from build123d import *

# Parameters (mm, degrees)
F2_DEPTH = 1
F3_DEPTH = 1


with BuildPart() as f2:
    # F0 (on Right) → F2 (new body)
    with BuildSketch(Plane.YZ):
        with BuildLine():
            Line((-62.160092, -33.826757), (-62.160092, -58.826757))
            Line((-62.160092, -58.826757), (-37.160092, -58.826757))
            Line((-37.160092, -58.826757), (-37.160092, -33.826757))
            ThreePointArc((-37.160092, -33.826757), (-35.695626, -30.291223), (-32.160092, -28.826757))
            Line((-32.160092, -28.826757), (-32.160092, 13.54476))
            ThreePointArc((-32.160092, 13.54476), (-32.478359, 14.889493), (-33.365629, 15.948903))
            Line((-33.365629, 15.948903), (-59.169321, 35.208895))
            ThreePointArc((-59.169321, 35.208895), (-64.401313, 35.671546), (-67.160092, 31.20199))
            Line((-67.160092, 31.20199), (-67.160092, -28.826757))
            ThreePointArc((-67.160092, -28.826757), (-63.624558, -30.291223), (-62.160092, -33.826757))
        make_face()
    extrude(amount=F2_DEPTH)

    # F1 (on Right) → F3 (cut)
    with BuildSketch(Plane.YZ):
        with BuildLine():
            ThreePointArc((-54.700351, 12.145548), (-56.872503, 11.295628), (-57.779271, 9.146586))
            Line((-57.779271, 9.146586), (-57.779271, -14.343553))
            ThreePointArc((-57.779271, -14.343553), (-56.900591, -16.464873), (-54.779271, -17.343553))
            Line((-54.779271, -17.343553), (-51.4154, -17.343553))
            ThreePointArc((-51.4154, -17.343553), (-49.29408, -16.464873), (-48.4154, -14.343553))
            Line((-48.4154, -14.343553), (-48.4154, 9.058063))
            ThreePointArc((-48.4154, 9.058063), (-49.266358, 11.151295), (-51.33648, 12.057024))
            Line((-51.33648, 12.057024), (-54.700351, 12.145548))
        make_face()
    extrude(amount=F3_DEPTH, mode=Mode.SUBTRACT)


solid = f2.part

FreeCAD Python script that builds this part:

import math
import FreeCAD as App
import Part
import Sketcher
Q = App.Units.Quantity

doc = App.newDocument("Part")
params = doc.addObject("Spreadsheet::Sheet", "Params")
for row, (alias, value) in enumerate([
    ("sketch1_radius", "5 mm"),
    ("sketch1_width", "25 mm"),
    ("pad1_length", "1 mm"),
    ("sketch2_radius", "3 mm"),
    ("pocket1_length", "1 mm"),
], start=1):
    params.set(f"A{row}", alias)
    params.set(f"B{row}", "=" + value)
    params.setAlias(f"B{row}", alias)

body = doc.addObject("PartDesign::Body", "Body")

# Sketch on YZ plane
sketch1 = body.newObject("Sketcher::SketchObject", "Sketch")
sketch1.AttachmentSupport = (doc.getObject("YZ_Plane"), [""])
sketch1.MapMode = "FlatFace"
sketch1.addGeometry([
    Part.LineSegment(App.Vector(-62.2, -33.8, 0), App.Vector(-62.2, -58.8, 0)),  # 0
    Part.LineSegment(App.Vector(-62.2, -58.8, 0), App.Vector(-37.2, -58.8, 0)),  # 1
    Part.LineSegment(App.Vector(-37.2, -58.8, 0), App.Vector(-37.2, -33.8, 0)),  # 2
    Part.ArcOfCircle(Part.Circle(App.Vector(-32.2, -33.8, 0), App.Vector(0, 0, 1), 5), math.radians(90), math.radians(180)),  # 3
    Part.LineSegment(App.Vector(-32.2, -28.8, 0), App.Vector(-32.2, 13.5, 0)),  # 4
    Part.ArcOfCircle(Part.Circle(App.Vector(-35.2, 13.5, 0), App.Vector(0, 0, 1), 3), math.radians(0), math.radians(53)),  # 5
    Part.LineSegment(App.Vector(-33.4, 15.9, 0), App.Vector(-59.2, 35.2, 0)),  # 6
    Part.ArcOfCircle(Part.Circle(App.Vector(-62.2, 31.2, 0), App.Vector(0, 0, 1), 5), math.radians(53), math.radians(180)),  # 7
    Part.LineSegment(App.Vector(-67.2, 31.2, 0), App.Vector(-67.2, -28.8, 0)),  # 8
    Part.ArcOfCircle(Part.Circle(App.Vector(-67.2, -33.8, 0), App.Vector(0, 0, 1), 5), math.radians(0), math.radians(90)),  # 9
], False)
sketch1.addConstraint([
    Sketcher.Constraint("Coincident", 0, 2, 1, 1),
    Sketcher.Constraint("Coincident", 1, 2, 2, 1),
    Sketcher.Constraint("Tangent", 2, 2, 3, 2),
    Sketcher.Constraint("Coincident", 3, 1, 4, 1),
    Sketcher.Constraint("Tangent", 4, 2, 5, 1),
    Sketcher.Constraint("Tangent", 5, 2, 6, 1),
    Sketcher.Constraint("Tangent", 6, 2, 7, 1),
    Sketcher.Constraint("Tangent", 7, 2, 8, 1),
    Sketcher.Constraint("Coincident", 8, 2, 9, 2),
    Sketcher.Constraint("Tangent", 9, 1, 0, 1),
    Sketcher.Constraint("Vertical", 0),
    Sketcher.Constraint("Horizontal", 1),
    Sketcher.Constraint("Vertical", 2),
    Sketcher.Constraint("Vertical", 4),
    Sketcher.Constraint("Vertical", 8),
    Sketcher.Constraint("Equal", 3, 7),
    Sketcher.Constraint("Equal", 7, 9),
    Sketcher.Constraint("Horizontal", 3, 3, 9, 3),
    Sketcher.Constraint("Vertical", 7, 3, 0, 2),
    Sketcher.Constraint("Equal", 1, 0),
    Sketcher.Constraint("Radius", 3, Q("5 mm")),
    Sketcher.Constraint("DistanceX", 1, 1, 1, 2, Q("25 mm")),
    Sketcher.Constraint("DistanceX", 2, 2, 3, 1, Q("5 mm")),
    Sketcher.Constraint("Radius", 5, Q("3.000003 mm")),
    Sketcher.Constraint("DistanceY", 4, 1, 4, 2, Q("42.371517 mm")),
    Sketcher.Constraint("DistanceY", 8, 2, 8, 1, Q("60.028747 mm")),
    Sketcher.Constraint("DistanceY", -1, 1, 5, 3, Q("13.544759 mm")),
    Sketcher.Constraint("DistanceX", 9, 3, -1, 1, Q("67.160092 mm")),
])
sketch1.setExpression("Constraints[20]", "Params.sketch1_radius")
sketch1.setExpression("Constraints[21]", "Params.sketch1_width")
pad1 = body.newObject("PartDesign::Pad", "Pad")
pad1.Profile = sketch1
pad1.setExpression("Length", "Params.pad1_length")

# Sketch on YZ plane
sketch2 = body.newObject("Sketcher::SketchObject", "Sketch001")
sketch2.AttachmentSupport = (doc.getObject("YZ_Plane"), [""])
sketch2.MapMode = "FlatFace"
sketch2.addGeometry([
    Part.ArcOfCircle(Part.Circle(App.Vector(-54.8, 9.1, 0), App.Vector(0, 0, 1), 3), math.radians(88), math.radians(180)),  # 0
    Part.LineSegment(App.Vector(-57.8, 9.1, 0), App.Vector(-57.8, -14.3, 0)),  # 1
    Part.ArcOfCircle(Part.Circle(App.Vector(-54.8, -14.3, 0), App.Vector(0, 0, 1), 3), math.radians(-180), math.radians(-90)),  # 2
    Part.LineSegment(App.Vector(-54.8, -17.3, 0), App.Vector(-51.4, -17.3, 0)),  # 3
    Part.ArcOfCircle(Part.Circle(App.Vector(-51.4, -14.3, 0), App.Vector(0, 0, 1), 3), math.radians(-90), math.radians(0)),  # 4
    Part.LineSegment(App.Vector(-48.4, -14.3, 0), App.Vector(-48.4, 9.1, 0)),  # 5
    Part.ArcOfCircle(Part.Circle(App.Vector(-51.4, 9.1, 0), App.Vector(0, 0, 1), 3), math.radians(0), math.radians(88)),  # 6
    Part.LineSegment(App.Vector(-51.3, 12.1, 0), App.Vector(-54.7, 12.1, 0)),  # 7
], False)
sketch2.addConstraint([
    Sketcher.Constraint("Tangent", 0, 2, 1, 1),
    Sketcher.Constraint("Tangent", 1, 2, 2, 1),
    Sketcher.Constraint("Tangent", 2, 2, 3, 1),
    Sketcher.Constraint("Tangent", 3, 2, 4, 1),
    Sketcher.Constraint("Tangent", 4, 2, 5, 1),
    Sketcher.Constraint("Tangent", 5, 2, 6, 1),
    Sketcher.Constraint("Tangent", 6, 2, 7, 1),
    Sketcher.Constraint("Tangent", 7, 2, 0, 1),
    Sketcher.Constraint("Vertical", 1),
    Sketcher.Constraint("Horizontal", 3),
    Sketcher.Constraint("Vertical", 5),
    Sketcher.Constraint("Equal", 0, 2),
    Sketcher.Constraint("Equal", 2, 4),
    Sketcher.Constraint("Equal", 0, 6),
    Sketcher.Constraint("Radius", 0, Q("3 mm")),
    Sketcher.Constraint("DistanceX", 3, 1, 3, 2, Q("3.363871 mm")),
    Sketcher.Constraint("DistanceY", 1, 2, 1, 1, Q("23.490139 mm")),
    Sketcher.Constraint("DistanceX", 4, 3, -1, 1, Q("51.415401 mm")),
    Sketcher.Constraint("DistanceY", 5, 1, 5, 2, Q("23.401616 mm")),
    Sketcher.Constraint("DistanceY", 2, 3, -1, 1, Q("14.343552 mm")),
])
sketch2.setExpression("Constraints[14]", "Params.sketch2_radius")
pocket1 = body.newObject("PartDesign::Pocket", "Pocket")
pocket1.Profile = sketch2
pocket1.setExpression("Length", "Params.pocket1_length")
pocket1.Reversed = True

doc.recompute()
